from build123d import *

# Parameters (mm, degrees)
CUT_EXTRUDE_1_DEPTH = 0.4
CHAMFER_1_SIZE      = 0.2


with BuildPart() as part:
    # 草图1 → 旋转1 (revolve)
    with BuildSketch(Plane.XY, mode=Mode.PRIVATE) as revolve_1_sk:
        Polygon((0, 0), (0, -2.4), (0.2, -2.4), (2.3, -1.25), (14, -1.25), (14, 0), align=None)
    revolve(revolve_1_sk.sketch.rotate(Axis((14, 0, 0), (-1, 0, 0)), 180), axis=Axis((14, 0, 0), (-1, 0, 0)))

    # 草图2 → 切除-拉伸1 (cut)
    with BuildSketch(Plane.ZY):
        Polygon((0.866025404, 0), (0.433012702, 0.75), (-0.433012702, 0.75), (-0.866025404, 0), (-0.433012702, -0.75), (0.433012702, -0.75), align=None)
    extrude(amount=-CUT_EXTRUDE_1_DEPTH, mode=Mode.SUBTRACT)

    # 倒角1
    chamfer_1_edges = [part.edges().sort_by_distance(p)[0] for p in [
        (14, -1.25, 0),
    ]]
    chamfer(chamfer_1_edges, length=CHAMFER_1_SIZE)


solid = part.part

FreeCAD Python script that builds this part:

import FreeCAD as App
import Part
import Sketcher

V = App.Vector
Q = App.Units.Quantity


def edges_at(feature, points):
    """Names of the edges that pass closest to the given points."""
    edges = feature.Shape.Edges
    near = lambda p: min(range(len(edges)), key=lambda i: edges[i].distToShape(Part.Vertex(*p))[0])
    return sorted({f"Edge{near(p) + 1}" for p in points})


def add_polygon(sketch, points):
    """Adds a closed chain of lines whose ends are joined by coincident constraints."""
    first, n = sketch.GeometryCount, len(points)
    for a, b in zip(points, points[1:] + points[:1]):
        sketch.addGeometry(Part.LineSegment(App.Vector(*a, 0), App.Vector(*b, 0)), False)
    for i in range(n):
        sketch.addConstraint(Sketcher.Constraint("Coincident", first + i, 2, first + (i + 1) % n, 1))

doc = App.newDocument("Part")
params = doc.addObject("Spreadsheet::Sheet", "Params")
for row, (alias, value) in enumerate([
    ("sketch1_width", "14 mm"),
    ("sketch1_width2", "0.2 mm"),
    ("sketch1_width3", "11.7 mm"),
    ("sketch1_height", "2.4 mm"),
    ("sketch1_height2", "1.25 mm"),
    ("revolution_angle", "360 deg"),
    ("pocket1_length", "0.4 mm"),
    ("chamfer_size", "0.2 mm"),
], start=1):
    params.set(f"A{row}", alias)
    params.set(f"B{row}", "=" + value)
    params.setAlias(f"B{row}", alias)

body = doc.addObject("PartDesign::Body", "Body")

# Sketch on XY plane
sketch1 = doc.addObject("Sketcher::SketchObject", "Sketch")
body.addObject(sketch1)
sketch1.AttachmentSupport = (doc.XY_Plane, [""])
sketch1.MapMode = "FlatFace"
add_polygon(sketch1, [(0, 0), (0, -2.4), (0.2, -2.4), (2.3, -1.25), (14, -1.25), (14, 0)])  # lines 0-5
sketch1.addConstraint([
    Sketcher.Constraint("Vertical", 0),
    Sketcher.Constraint("Horizontal", 1),
    Sketcher.Constraint("Horizontal", 3),
    Sketcher.Constraint("Vertical", 4),
    Sketcher.Constraint("Horizontal", 5),
    Sketcher.Constraint("Coincident", 5, 2, -1, 1),
    Sketcher.Constraint("DistanceX", 5, 2, 5, 1, Q("14 mm")),
    Sketcher.Constraint("DistanceX", 1, 1, 1, 2, Q("0.2 mm")),
    Sketcher.Constraint("DistanceX", 3, 1, 3, 2, Q("11.7 mm")),
    Sketcher.Constraint("DistanceY", 0, 2, 0, 1, Q("2.4 mm")),
    Sketcher.Constraint("DistanceY", 4, 1, 4, 2, Q("1.25 mm")),
])
sketch1.setExpression("Constraints[12]", "Params.sketch1_width")
sketch1.setExpression("Constraints[13]", "Params.sketch1_width2")
sketch1.setExpression("Constraints[14]", "Params.sketch1_width3")
sketch1.setExpression("Constraints[15]", "Params.sketch1_height")
sketch1.setExpression("Constraints[16]", "Params.sketch1_height2")
revolution = doc.addObject("PartDesign::Revolution", "Revolution")
body.addObject(revolution)
revolution.Profile = sketch1
revolution.ReferenceAxis = (sketch1, ["H_Axis"])
revolution.setExpression("Angle", "Params.revolution_angle")

# Sketch on YZ plane
sketch2 = doc.addObject("Sketcher::SketchObject", "Sketch001")
body.addObject(sketch2)
sketch2.AttachmentSupport = (doc.YZ_Plane, [""])
sketch2.MapMode = "FlatFace"
add_polygon(sketch2, [(0, 0.9), (0.8, 0.4), (0.8, -0.4), (0, -0.9), (-0.8, -0.4), (-0.8, 0.4)])  # lines 0-5
sketch2.addConstraint([
    Sketcher.Constraint("Vertical", 1),
    Sketcher.Constraint("Vertical", 4),
    Sketcher.Constraint("Symmetric", 0, 2, 3, 2, -1, 1),
    Sketcher.Constraint("Symmetric", 2, 2, 5, 2, -1, 1),
    Sketcher.Constraint("PointOnObject", 2, 2, -2),
    Sketcher.Constraint("Parallel", 2, 5),
    Sketcher.Constraint("Horizontal", 1, 2, 3, 2),
    Sketcher.Constraint("Angle", 0, Q("-30 deg")),
    Sketcher.Constraint("DistanceX", 3, 2, 1, 2, Q("1.5 mm")),
    Sketcher.Constraint("DistanceY", 1, 2, 1, 1, Q("0.866025 mm")),
])
pocket1 = doc.addObject("PartDesign::Pocket", "Pocket")
body.addObject(pocket1)
pocket1.Profile = sketch2
pocket1.setExpression("Length", "Params.pocket1_length")
pocket1.Reversed = True
doc.recompute()

chamfer = doc.addObject("PartDesign::Chamfer", "Chamfer")
body.addObject(chamfer)
chamfer.Base = (pocket1, edges_at(pocket1, [(14, -1.25, 0)]))
chamfer.setExpression("Size", "Params.chamfer_size")

doc.recompute()
